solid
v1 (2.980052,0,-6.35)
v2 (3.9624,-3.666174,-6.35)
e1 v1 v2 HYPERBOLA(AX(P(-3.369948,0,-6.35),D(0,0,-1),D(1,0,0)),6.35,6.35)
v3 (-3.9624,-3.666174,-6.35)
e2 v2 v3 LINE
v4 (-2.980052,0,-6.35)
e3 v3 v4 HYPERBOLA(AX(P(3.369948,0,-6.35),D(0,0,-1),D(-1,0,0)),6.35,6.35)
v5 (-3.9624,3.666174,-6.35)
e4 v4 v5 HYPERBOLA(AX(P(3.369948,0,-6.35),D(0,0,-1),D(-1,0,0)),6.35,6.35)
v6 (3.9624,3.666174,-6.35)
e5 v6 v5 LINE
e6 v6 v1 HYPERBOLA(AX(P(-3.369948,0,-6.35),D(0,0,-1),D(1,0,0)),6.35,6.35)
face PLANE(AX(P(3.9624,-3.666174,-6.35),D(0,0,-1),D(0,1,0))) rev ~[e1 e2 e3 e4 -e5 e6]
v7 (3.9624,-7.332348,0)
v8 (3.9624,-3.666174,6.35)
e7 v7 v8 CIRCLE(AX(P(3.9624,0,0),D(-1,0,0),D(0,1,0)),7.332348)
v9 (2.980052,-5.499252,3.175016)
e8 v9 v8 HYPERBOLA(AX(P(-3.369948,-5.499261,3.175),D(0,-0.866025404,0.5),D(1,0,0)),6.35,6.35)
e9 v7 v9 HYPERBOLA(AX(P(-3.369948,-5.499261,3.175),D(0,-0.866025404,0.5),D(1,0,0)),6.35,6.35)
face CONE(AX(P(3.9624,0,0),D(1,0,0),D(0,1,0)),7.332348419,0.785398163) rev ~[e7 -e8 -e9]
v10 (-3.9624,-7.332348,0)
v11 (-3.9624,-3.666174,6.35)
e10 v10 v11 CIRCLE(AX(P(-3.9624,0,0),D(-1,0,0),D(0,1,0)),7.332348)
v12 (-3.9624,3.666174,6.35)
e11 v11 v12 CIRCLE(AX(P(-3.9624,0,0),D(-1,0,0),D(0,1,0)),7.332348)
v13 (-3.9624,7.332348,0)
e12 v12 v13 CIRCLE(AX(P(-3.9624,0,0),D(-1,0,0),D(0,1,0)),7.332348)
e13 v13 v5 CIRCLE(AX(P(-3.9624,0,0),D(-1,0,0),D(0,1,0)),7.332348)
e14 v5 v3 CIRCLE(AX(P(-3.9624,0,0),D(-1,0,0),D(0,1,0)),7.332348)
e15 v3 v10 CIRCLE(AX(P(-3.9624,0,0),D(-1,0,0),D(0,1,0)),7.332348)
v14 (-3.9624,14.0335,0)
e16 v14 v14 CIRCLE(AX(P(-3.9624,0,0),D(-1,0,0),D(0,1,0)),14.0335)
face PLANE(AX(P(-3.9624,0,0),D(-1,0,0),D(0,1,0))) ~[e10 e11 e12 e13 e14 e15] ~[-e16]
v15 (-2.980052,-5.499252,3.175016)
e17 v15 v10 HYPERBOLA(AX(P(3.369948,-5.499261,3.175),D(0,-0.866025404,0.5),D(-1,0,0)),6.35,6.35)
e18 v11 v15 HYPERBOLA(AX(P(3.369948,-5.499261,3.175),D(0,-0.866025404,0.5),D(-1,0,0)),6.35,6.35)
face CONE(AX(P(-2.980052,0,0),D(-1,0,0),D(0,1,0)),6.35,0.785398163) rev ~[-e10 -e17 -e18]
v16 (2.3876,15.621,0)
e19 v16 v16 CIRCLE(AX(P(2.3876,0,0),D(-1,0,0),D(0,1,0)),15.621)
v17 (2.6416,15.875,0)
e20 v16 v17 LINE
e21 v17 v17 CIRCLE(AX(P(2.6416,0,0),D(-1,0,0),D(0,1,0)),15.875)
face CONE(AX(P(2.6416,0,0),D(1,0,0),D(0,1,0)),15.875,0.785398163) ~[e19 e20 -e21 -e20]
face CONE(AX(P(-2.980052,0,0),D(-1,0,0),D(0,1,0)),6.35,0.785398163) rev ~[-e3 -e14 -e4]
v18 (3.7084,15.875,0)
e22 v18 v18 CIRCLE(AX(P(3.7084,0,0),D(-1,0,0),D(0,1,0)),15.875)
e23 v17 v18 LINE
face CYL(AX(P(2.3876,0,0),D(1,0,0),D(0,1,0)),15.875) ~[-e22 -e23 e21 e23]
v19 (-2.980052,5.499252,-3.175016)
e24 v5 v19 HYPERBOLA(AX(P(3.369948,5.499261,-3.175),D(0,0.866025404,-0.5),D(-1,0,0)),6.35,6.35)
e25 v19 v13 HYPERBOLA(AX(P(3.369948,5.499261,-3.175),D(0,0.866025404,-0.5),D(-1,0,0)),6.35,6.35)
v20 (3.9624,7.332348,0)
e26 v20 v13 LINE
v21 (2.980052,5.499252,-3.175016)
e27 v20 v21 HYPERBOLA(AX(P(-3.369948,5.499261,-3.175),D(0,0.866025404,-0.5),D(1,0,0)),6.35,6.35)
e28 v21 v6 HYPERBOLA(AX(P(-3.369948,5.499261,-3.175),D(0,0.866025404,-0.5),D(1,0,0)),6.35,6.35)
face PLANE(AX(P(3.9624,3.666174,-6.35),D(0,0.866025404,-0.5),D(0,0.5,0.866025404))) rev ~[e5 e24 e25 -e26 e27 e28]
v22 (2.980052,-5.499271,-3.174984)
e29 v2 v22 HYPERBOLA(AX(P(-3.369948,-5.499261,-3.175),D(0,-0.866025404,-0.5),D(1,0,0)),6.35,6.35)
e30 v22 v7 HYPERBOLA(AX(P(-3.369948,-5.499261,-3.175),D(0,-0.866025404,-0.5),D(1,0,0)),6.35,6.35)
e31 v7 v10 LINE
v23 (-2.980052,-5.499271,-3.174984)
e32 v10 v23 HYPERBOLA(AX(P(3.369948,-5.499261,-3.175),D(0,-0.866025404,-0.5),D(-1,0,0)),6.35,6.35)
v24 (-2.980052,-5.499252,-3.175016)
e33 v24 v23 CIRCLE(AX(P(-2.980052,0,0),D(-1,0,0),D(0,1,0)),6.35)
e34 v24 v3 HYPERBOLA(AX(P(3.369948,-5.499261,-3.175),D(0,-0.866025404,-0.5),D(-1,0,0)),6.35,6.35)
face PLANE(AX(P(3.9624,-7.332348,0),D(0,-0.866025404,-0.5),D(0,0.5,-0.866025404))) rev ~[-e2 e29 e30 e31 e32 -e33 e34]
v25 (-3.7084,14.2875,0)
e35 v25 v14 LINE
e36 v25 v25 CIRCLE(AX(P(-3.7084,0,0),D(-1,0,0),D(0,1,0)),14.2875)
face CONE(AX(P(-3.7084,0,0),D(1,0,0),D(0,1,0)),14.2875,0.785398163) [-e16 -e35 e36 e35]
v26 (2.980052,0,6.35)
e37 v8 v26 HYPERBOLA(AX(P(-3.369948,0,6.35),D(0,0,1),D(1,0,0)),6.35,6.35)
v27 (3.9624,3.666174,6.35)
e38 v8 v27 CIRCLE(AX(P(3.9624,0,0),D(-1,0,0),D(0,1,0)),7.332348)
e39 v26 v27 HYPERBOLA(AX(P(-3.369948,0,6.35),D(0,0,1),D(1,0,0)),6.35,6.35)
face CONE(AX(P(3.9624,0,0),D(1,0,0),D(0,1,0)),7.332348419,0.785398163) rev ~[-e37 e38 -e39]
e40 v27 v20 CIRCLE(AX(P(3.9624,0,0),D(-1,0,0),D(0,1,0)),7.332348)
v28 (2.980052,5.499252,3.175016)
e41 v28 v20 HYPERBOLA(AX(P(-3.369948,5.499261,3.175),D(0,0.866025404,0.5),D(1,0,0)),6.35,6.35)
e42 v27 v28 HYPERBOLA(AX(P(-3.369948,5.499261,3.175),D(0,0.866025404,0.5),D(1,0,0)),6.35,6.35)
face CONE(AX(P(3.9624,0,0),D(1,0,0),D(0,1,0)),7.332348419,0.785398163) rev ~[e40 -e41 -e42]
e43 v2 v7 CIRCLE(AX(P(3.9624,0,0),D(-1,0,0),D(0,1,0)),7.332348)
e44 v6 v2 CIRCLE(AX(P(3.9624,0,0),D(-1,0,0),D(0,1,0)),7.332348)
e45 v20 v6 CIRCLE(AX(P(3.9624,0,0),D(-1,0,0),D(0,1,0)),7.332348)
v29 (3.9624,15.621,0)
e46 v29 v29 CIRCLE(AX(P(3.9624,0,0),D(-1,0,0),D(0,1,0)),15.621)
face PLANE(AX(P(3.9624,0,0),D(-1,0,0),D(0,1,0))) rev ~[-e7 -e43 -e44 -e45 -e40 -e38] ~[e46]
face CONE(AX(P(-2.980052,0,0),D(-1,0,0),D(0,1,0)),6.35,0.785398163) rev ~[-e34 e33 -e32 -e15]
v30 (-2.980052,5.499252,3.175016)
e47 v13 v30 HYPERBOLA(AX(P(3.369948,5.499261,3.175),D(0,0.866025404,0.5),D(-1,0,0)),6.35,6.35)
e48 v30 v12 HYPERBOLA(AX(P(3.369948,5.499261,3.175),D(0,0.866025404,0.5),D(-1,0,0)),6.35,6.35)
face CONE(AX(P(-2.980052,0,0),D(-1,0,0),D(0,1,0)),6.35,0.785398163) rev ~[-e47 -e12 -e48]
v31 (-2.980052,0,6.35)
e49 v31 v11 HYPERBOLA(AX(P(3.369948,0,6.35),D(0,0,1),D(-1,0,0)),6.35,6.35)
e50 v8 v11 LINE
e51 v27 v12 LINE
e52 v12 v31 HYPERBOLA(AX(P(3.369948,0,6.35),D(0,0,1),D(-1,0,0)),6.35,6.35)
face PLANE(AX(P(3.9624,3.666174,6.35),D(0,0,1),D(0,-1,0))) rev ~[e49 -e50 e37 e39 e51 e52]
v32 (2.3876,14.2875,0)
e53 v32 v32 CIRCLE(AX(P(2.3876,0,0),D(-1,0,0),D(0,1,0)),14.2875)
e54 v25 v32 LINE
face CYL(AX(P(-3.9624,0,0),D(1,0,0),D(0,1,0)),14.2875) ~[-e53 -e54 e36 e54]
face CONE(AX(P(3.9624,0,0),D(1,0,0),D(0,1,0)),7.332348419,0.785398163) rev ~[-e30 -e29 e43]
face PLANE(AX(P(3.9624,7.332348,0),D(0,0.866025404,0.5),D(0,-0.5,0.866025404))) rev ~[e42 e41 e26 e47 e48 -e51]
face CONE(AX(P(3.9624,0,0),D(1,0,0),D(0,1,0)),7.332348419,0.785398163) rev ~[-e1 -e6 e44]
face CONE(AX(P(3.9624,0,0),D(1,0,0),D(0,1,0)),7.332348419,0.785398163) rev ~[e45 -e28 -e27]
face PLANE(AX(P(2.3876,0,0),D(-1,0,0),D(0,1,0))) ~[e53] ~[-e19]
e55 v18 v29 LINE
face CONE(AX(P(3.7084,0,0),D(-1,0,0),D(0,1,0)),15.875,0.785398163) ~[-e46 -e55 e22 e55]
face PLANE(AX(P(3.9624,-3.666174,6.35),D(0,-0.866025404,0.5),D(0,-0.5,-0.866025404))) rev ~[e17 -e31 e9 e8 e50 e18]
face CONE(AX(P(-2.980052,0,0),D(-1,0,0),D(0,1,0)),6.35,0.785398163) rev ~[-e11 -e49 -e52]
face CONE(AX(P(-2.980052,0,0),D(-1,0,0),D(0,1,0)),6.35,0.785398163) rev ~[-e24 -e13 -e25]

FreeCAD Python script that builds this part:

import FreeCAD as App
import Part
import Sketcher

V = App.Vector
Q = App.Units.Quantity


def edges_at(feature, points):
    """Names of the edges that pass closest to the given points."""
    edges = feature.Shape.Edges
    near = lambda p: min(range(len(edges)), key=lambda i: edges[i].distToShape(Part.Vertex(*p))[0])
    return sorted({f"Edge{near(p) + 1}" for p in points})

doc = App.newDocument("Part")
body = doc.addObject("PartDesign::Body", "Body")

# Sketch on XY plane
sketch1 = body.newObject("Sketcher::SketchObject", "Sketch")
sketch1.AttachmentSupport = (doc.getObject("XY_Plane"), [""])
sketch1.MapMode = "FlatFace"
sketch1.addGeometry(Part.LineSegment(V(2.4, 14.3, 0), V(-4, 14.3, 0)), False)
sketch1.addGeometry(Part.LineSegment(V(-4, 14.3, 0), V(-4, 7.3, 0)), False)
sketch1.addGeometry(Part.LineSegment(V(-4, 7.3, 0), V(-3, 6.3, 0)), False)
sketch1.addGeometry(Part.LineSegment(V(-3, 6.3, 0), V(3, 6.3, 0)), False)
sketch1.addGeometry(Part.LineSegment(V(3, 6.3, 0), V(4, 7.3, 0)), False)
sketch1.addGeometry(Part.LineSegment(V(4, 7.3, 0), V(4, 15.9, 0)), False)
sketch1.addGeometry(Part.LineSegment(V(4, 15.9, 0), V(2.4, 15.9, 0)), False)
sketch1.addGeometry(Part.LineSegment(V(2.4, 15.9, 0), V(2.4, 14.3, 0)), False)
sketch1.addConstraint(Sketcher.Constraint("Coincident", 0, 2, 1, 1))
sketch1.addConstraint(Sketcher.Constraint("Coincident", 1, 2, 2, 1))
sketch1.addConstraint(Sketcher.Constraint("Coincident", 2, 2, 3, 1))
sketch1.addConstraint(Sketcher.Constraint("Coincident", 3, 2, 4, 1))
sketch1.addConstraint(Sketcher.Constraint("Coincident", 4, 2, 5, 1))
sketch1.addConstraint(Sketcher.Constraint("Coincident", 5, 2, 6, 1))
sketch1.addConstraint(Sketcher.Constraint("Coincident", 6, 2, 7, 1))
sketch1.addConstraint(Sketcher.Constraint("Coincident", 7, 2, 0, 1))
sketch1.addConstraint(Sketcher.Constraint("Horizontal", 0))
sketch1.addConstraint(Sketcher.Constraint("Vertical", 1))
sketch1.addConstraint(Sketcher.Constraint("Horizontal", 3))
sketch1.addConstraint(Sketcher.Constraint("Vertical", 5))
sketch1.addConstraint(Sketcher.Constraint("Horizontal", 6))
sketch1.addConstraint(Sketcher.Constraint("Vertical", 7))
sketch1.addConstraint(Sketcher.Constraint("Symmetric", 1, 2, 4, 2, -2))
sketch1.addConstraint(Sketcher.Constraint("Perpendicular", 2, 4))
sketch1.addConstraint(Sketcher.Constraint("Equal", 2, 4))
sketch1.addConstraint(Sketcher.Constraint("DistanceX", 0, 2, 0, 1, Q("0.25 in")))
sketch1.addConstraint(Sketcher.Constraint("DistanceX", 6, 2, 6, 1, Q("0.062 in")))
sketch1.addConstraint(Sketcher.Constraint("DistanceY", 7, 2, 7, 1, Q("0.0625 in")))
sketch1.addConstraint(Sketcher.Constraint("DistanceY", -1, 1, 2, 2, Q("0.25 in")))
sketch1.addConstraint(Sketcher.Constraint("DistanceY", -1, 1, 0, 2, Q("0.5625 in")))
sketch1.addConstraint(Sketcher.Constraint("DistanceY", 1, 2, 1, 1, Q("6.955152 mm")))
revolution = body.newObject("PartDesign::Revolution", "Revolution")
revolution.Profile = sketch1
revolution.ReferenceAxis = (sketch1, ["H_Axis"])
revolution.Angle = 360

# Sketch on YZ plane
sketch2 = body.newObject("Sketcher::SketchObject", "Sketch001")
sketch2.AttachmentSupport = (doc.getObject("YZ_Plane"), [""])
sketch2.MapMode = "FlatFace"
sketch2.AttachmentOffset = App.Placement(V(0, 0, 0.156 * 25.4), App.Rotation())
sketch2.addGeometry(Part.LineSegment(V(7, 0, 0), V(4, 6, 0)), False)
sketch2.addGeometry(Part.LineSegment(V(4, 6, 0), V(-4, 6, 0)), False)
sketch2.addGeometry(Part.LineSegment(V(-4, 6, 0), V(-7, 0, 0)), False)
sketch2.addGeometry(Part.LineSegment(V(-7, 0, 0), V(-4, -6, 0)), False)
sketch2.addGeometry(Part.LineSegment(V(-4, -6, 0), V(4, -6, 0)), False)
sketch2.addGeometry(Part.LineSegment(V(4, -6, 0), V(7, 0, 0)), False)
sketch2.addConstraint(Sketcher.Constraint("Coincident", 0, 2, 1, 1))
sketch2.addConstraint(Sketcher.Constraint("Coincident", 1, 2, 2, 1))
sketch2.addConstraint(Sketcher.Constraint("Coincident", 2, 2, 3, 1))
sketch2.addConstraint(Sketcher.Constraint("Coincident", 3, 2, 4, 1))
sketch2.addConstraint(Sketcher.Constraint("Coincident", 4, 2, 5, 1))
sketch2.addConstraint(Sketcher.Constraint("Coincident", 5, 2, 0, 1))
sketch2.addConstraint(Sketcher.Constraint("Horizontal", 1))
sketch2.addConstraint(Sketcher.Constraint("Horizontal", 4))
sketch2.addConstraint(Sketcher.Constraint("Symmetric", 0, 2, 3, 2, -1, 1))
sketch2.addConstraint(Sketcher.Constraint("Symmetric", 2, 2, 5, 2, -1, 1))
sketch2.addConstraint(Sketcher.Constraint("PointOnObject", 2, 2, -1))
sketch2.addConstraint(Sketcher.Constraint("Parallel", 2, 5))
sketch2.addConstraint(Sketcher.Constraint("Vertical", 1, 2, 3, 2))
sketch2.addConstraint(Sketcher.Constraint("Angle", 0, Q("120 deg")))
sketch2.addConstraint(Sketcher.Constraint("DistanceY", 3, 2, 1, 2, Q("0.5 in")))
sketch2.addConstraint(Sketcher.Constraint("DistanceX", 1, 2, 1, 1, Q("7.332348 mm")))
pocket1 = body.newObject("PartDesign::Pocket", "Pocket")
pocket1.Profile = sketch2
pocket1.Type = "ThroughAll"
doc.recompute()

chamfer = body.newObject("PartDesign::Chamfer", "Chamfer")
chamfer.Base = (pocket1, edges_at(pocket1, [(3.962, -15.875, 0), (2.388, -15.875, 0), (-3.962, -14.287, 0)]))
chamfer.Size = Q("0.01 in")

doc.recompute()
